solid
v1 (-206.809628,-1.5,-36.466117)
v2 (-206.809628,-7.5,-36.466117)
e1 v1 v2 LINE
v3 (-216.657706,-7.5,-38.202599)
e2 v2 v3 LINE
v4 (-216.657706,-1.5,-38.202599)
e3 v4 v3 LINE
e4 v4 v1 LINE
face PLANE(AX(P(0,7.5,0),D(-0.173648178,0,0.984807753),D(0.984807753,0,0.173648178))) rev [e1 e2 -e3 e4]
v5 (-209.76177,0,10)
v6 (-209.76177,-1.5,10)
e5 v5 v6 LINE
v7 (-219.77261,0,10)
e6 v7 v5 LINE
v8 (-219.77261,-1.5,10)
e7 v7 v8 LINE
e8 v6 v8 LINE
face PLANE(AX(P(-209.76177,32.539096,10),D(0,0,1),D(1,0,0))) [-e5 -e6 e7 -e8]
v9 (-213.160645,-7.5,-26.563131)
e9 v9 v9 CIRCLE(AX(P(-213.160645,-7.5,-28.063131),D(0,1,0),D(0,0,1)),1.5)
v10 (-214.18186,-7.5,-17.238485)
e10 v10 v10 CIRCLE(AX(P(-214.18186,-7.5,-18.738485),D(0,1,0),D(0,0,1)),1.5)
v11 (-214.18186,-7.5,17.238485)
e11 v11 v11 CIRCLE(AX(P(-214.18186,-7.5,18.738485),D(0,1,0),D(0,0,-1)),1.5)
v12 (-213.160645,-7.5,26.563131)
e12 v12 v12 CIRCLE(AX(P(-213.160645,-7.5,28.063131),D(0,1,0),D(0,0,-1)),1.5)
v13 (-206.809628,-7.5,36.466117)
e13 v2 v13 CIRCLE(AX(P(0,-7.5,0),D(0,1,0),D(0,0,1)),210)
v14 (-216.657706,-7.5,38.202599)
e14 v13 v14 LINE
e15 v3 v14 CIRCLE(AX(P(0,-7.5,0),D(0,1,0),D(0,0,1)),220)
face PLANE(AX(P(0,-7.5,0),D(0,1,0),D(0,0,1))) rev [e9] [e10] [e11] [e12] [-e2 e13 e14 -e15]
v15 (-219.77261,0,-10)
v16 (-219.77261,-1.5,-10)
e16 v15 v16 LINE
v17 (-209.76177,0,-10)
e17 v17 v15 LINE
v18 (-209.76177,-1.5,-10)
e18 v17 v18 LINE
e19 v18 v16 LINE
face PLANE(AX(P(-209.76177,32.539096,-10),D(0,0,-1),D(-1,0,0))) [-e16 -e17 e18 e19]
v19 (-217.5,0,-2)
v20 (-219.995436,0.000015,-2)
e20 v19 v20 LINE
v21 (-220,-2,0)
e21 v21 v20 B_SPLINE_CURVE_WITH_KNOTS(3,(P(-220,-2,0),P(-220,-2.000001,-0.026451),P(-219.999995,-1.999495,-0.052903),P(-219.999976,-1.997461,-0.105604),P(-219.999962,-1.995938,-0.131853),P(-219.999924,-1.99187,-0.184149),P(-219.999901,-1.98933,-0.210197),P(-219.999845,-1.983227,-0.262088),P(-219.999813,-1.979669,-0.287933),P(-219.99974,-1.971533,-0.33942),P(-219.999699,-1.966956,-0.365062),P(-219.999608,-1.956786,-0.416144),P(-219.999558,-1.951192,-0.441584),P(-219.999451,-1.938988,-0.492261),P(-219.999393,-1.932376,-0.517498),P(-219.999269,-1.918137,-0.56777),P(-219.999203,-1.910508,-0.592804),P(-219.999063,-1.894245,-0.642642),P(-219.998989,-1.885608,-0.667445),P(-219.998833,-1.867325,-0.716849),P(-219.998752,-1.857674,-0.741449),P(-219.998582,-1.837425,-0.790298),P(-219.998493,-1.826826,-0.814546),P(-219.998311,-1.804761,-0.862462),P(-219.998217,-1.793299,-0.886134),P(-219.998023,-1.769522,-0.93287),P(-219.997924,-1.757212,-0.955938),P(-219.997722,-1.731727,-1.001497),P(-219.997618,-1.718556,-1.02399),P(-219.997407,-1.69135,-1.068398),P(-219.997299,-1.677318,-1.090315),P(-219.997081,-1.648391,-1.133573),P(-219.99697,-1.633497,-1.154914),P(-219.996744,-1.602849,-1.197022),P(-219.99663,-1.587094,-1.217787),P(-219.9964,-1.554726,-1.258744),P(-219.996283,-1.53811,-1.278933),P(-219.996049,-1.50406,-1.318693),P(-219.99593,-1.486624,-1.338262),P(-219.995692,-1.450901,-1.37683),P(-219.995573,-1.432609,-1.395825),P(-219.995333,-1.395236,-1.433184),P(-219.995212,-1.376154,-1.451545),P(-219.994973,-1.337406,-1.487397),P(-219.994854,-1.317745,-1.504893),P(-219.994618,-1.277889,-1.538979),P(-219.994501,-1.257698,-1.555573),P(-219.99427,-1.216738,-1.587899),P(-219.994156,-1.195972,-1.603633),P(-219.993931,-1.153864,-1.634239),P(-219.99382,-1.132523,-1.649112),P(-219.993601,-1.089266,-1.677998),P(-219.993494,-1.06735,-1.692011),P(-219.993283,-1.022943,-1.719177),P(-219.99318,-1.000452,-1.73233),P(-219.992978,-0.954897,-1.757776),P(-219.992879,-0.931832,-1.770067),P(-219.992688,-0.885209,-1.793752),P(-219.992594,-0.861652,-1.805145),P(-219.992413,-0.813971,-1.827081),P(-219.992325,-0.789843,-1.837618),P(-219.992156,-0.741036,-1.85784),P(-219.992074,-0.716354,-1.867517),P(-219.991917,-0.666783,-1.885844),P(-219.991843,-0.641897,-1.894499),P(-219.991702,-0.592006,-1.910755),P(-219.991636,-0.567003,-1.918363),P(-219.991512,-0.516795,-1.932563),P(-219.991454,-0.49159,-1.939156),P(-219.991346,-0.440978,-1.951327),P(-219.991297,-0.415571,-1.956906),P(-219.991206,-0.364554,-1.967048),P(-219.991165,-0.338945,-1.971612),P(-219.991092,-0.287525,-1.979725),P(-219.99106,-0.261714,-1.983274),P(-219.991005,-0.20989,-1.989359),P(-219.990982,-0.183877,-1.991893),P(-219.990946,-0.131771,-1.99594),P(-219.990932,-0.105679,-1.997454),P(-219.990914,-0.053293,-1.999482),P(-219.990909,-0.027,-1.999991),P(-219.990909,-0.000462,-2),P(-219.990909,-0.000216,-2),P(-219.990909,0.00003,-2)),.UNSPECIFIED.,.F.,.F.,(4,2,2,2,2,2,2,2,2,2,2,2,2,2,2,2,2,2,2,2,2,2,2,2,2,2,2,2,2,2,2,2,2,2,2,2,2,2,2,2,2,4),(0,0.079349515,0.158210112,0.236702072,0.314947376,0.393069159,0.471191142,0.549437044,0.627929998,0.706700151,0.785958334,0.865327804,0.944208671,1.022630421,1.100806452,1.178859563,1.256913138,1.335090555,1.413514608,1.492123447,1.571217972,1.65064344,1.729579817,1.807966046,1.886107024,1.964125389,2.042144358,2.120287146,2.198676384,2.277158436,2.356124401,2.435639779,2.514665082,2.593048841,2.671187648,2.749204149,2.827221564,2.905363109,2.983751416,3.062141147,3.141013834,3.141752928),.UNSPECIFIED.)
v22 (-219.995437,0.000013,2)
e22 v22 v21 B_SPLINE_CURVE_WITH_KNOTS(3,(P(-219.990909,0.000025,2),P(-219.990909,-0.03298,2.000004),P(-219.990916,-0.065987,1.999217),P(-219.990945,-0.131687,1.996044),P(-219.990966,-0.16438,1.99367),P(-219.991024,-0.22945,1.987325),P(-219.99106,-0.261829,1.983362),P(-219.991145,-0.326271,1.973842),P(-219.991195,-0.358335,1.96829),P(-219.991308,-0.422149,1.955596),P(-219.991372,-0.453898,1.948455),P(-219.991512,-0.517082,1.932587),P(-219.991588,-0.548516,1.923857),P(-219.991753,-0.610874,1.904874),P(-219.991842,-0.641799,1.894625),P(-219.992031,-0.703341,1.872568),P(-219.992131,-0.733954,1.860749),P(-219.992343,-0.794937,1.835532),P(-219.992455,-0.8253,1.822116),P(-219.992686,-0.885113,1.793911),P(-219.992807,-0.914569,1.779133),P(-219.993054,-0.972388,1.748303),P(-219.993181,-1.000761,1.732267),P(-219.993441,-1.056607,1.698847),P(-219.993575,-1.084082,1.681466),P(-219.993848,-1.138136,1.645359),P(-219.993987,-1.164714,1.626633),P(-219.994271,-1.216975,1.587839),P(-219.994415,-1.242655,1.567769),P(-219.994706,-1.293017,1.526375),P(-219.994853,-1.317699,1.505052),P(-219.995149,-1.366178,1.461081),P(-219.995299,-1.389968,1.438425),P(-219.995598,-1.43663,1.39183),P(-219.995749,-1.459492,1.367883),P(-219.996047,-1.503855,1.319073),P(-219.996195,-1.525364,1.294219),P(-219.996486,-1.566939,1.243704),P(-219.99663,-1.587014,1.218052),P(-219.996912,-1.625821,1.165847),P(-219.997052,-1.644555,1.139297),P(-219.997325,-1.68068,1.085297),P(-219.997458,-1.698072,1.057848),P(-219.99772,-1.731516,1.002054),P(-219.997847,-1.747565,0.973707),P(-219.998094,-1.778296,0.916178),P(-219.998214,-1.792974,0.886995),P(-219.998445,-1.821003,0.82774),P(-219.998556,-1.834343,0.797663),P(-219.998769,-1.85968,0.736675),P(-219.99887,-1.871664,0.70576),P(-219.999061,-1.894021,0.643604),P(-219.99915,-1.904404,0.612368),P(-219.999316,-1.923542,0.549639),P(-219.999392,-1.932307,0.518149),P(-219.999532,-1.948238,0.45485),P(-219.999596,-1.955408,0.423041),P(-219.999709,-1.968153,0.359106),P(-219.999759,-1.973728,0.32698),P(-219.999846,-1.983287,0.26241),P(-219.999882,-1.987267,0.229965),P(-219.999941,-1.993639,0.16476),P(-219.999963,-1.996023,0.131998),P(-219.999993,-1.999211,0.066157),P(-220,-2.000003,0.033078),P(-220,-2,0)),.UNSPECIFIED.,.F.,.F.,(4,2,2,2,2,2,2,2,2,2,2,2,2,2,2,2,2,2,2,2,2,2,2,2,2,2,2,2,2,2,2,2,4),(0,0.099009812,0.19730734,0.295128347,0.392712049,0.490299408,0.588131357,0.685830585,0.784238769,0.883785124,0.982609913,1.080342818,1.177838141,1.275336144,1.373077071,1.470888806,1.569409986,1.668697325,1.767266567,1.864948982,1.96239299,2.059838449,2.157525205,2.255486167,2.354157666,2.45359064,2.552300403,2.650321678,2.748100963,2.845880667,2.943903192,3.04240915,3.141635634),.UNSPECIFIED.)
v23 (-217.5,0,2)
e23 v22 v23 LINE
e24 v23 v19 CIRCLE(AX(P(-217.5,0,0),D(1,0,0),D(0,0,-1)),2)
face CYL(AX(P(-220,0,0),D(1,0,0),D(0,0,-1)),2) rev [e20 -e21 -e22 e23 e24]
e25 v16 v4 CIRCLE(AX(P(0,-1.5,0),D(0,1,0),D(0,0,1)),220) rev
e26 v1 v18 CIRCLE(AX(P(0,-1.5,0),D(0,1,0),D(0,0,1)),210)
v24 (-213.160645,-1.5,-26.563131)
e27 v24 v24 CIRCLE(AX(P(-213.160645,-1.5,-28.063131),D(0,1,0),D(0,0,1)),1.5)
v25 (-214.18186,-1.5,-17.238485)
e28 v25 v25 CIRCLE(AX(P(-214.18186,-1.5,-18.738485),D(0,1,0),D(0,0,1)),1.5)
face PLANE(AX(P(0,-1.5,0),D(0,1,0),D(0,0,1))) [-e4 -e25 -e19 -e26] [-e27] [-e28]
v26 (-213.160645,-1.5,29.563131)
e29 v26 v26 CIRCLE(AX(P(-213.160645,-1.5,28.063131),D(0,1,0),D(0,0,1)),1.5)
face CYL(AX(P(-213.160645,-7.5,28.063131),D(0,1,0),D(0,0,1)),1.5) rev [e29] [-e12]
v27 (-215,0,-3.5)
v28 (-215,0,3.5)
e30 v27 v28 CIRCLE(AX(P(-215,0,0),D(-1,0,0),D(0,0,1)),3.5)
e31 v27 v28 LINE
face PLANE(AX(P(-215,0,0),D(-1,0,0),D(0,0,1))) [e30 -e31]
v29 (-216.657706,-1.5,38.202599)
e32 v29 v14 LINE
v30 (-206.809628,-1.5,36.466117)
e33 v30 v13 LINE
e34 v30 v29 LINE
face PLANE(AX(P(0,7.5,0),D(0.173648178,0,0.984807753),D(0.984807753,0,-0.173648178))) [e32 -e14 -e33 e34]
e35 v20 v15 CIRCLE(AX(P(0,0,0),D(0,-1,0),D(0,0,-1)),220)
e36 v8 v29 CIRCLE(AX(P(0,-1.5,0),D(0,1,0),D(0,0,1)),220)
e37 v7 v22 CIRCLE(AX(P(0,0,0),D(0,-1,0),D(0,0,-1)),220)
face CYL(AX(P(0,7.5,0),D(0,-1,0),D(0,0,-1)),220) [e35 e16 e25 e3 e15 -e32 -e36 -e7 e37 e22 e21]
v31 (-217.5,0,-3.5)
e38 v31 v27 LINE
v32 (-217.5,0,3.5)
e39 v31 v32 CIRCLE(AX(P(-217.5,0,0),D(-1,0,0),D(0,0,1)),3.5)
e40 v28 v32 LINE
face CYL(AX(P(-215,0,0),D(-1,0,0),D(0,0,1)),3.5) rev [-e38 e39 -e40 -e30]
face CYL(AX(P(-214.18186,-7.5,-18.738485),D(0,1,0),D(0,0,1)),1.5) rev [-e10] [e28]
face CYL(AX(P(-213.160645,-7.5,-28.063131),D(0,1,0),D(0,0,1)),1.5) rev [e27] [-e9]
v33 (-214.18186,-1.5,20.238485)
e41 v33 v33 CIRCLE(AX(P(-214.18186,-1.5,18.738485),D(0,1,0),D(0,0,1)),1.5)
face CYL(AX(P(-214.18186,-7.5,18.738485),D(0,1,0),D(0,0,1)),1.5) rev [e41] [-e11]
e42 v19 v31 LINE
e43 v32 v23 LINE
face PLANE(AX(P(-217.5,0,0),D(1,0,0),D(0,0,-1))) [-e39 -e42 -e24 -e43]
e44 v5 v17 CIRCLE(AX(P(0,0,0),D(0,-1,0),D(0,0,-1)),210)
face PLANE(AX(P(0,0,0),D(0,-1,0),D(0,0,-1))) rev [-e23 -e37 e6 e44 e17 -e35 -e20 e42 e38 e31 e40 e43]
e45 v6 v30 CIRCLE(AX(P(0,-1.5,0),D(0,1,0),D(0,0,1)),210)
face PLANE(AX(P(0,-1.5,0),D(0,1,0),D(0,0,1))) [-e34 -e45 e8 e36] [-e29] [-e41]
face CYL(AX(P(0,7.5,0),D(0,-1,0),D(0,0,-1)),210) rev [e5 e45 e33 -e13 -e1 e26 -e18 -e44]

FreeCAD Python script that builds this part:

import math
import FreeCAD as App
import Part
import Sketcher
from FreeCAD import Vector
Q = App.Units.Quantity


def add_polygon(sketch, points):
    """Adds a closed chain of lines whose ends are joined by coincident constraints."""
    first, n = sketch.GeometryCount, len(points)
    for a, b in zip(points, points[1:] + points[:1]):
        sketch.addGeometry(Part.LineSegment(App.Vector(*a, 0), App.Vector(*b, 0)), False)
    for i in range(n):
        sketch.addConstraint(Sketcher.Constraint("Coincident", first + i, 2, first + (i + 1) % n, 1))

doc = App.newDocument("Part")
body = doc.addObject("PartDesign::Body", "Body")

# Sketch on XZ plane
sketch1 = body.newObject("Sketcher::SketchObject", "Sketch")
sketch1.AttachmentSupport = (doc.getObject("XZ_Plane"), [""])
sketch1.MapMode = "FlatFace"
sketch1.addGeometry([
    Part.ArcOfCircle(Part.Circle(Vector(0, 0, 0), Vector(0, 0, 1), 210), math.radians(-177.27), math.radians(-170)),  # 0
    Part.LineSegment(Vector(-207, -36, 0), Vector(-217, -38, 0)),  # 1
    Part.ArcOfCircle(Part.Circle(Vector(0, 0, 0), Vector(0, 0, 1), 220), math.radians(-177.39), math.radians(-170)),  # 2
    Part.ArcOfCircle(Part.Circle(Vector(0, 0, 0), Vector(0, 0, 1), 220), math.radians(177.39), math.radians(182.61)),  # 3
    Part.ArcOfCircle(Part.Circle(Vector(0, 0, 0), Vector(0, 0, 1), 220), math.radians(170), math.radians(177.39)),  # 4
    Part.LineSegment(Vector(-217, 38, 0), Vector(-207, 36, 0)),  # 5
    Part.ArcOfCircle(Part.Circle(Vector(0, 0, 0), Vector(0, 0, 1), 210), math.radians(170), math.radians(177.27)),  # 6
    Part.ArcOfCircle(Part.Circle(Vector(0, 0, 0), Vector(0, 0, 1), 210), math.radians(177.27), math.radians(182.73)),  # 7
], False)
sketch1.addConstraint([
    Sketcher.Constraint("Coincident", 0, 2, 1, 1),
    Sketcher.Constraint("Coincident", 1, 2, 2, 2),
    Sketcher.Constraint("Tangent", 2, 1, 3, 2),
    Sketcher.Constraint("Tangent", 3, 1, 4, 2),
    Sketcher.Constraint("Coincident", 4, 1, 5, 1),
    Sketcher.Constraint("Coincident", 5, 2, 6, 1),
    Sketcher.Constraint("Tangent", 6, 2, 7, 1),
    Sketcher.Constraint("Tangent", 7, 2, 0, 1),
    Sketcher.Constraint("Coincident", 0, 3, -1, 1),
    Sketcher.Constraint("Coincident", 2, 3, -1, 1),
    Sketcher.Constraint("Coincident", 4, 3, -1, 1),
    Sketcher.Constraint("Coincident", 6, 3, -1, 1),
    Sketcher.Constraint("Horizontal", 3, 1, 6, 2),
    Sketcher.Constraint("Horizontal", 2, 1, 7, 2),
    Sketcher.Constraint("Vertical", 2, 1, 3, 1),
    Sketcher.Constraint("Vertical", 1, 2, 4, 1),
    Sketcher.Constraint("Vertical", 0, 2, 5, 2),
    Sketcher.Constraint("Radius", 0, 210.0),
    Sketcher.Constraint("Radius", 2, 220.0),
    Sketcher.Constraint("Angle", 1, Q("-170 deg")),
    Sketcher.Constraint("DistanceY", 2, 1, -1, 1, 10.0),
    Sketcher.Constraint("DistanceY", 1, 2, -1, 1, 38.202599),
])
pad1 = body.newObject("PartDesign::Pad", "Pad")
pad1.Profile = sketch1
pad1.Length = 15
pad1.Midplane = True

# Sketch on XZ plane
sketch2 = body.newObject("Sketcher::SketchObject", "Sketch001")
sketch2.AttachmentSupport = (doc.getObject("XZ_Plane"), [""])
sketch2.MapMode = "FlatFace"
sketch2.AttachmentOffset = App.Placement(Vector(0, 0, 1.5), App.Rotation())
sketch2.addGeometry([
    Part.LineSegment(Vector(-210, 10, 0), Vector(-220, 10, 0)),  # 0
    Part.ArcOfCircle(Part.Circle(Vector(0, 0, 0), Vector(0, 0, 1), 220), math.radians(170), math.radians(177.39)),  # 1
    Part.LineSegment(Vector(-217, 38, 0), Vector(-207, 36, 0)),  # 2
    Part.ArcOfCircle(Part.Circle(Vector(0, 0, 0), Vector(0, 0, 1), 210), math.radians(170), math.radians(177.27)),  # 3
    Part.LineSegment(Vector(-220, -10, 0), Vector(-210, -10, 0)),  # 4
    Part.ArcOfCircle(Part.Circle(Vector(0, 0, 0), Vector(0, 0, 1), 210), math.radians(-177.27), math.radians(-170)),  # 5
    Part.LineSegment(Vector(-207, -36, 0), Vector(-217, -38, 0)),  # 6
    Part.ArcOfCircle(Part.Circle(Vector(0, 0, 0), Vector(0, 0, 1), 220), math.radians(-177.39), math.radians(-170)),  # 7
], False)
sketch2.addConstraint([
    Sketcher.Constraint("Coincident", 0, 2, 1, 2),
    Sketcher.Constraint("Coincident", 1, 1, 2, 1),
    Sketcher.Constraint("Coincident", 2, 2, 3, 1),
    Sketcher.Constraint("Coincident", 3, 2, 0, 1),
    Sketcher.Constraint("Coincident", 4, 2, 5, 1),
    Sketcher.Constraint("Coincident", 5, 2, 6, 1),
    Sketcher.Constraint("Coincident", 6, 2, 7, 2),
    Sketcher.Constraint("Coincident", 7, 1, 4, 1),
    Sketcher.Constraint("Horizontal", 0),
    Sketcher.Constraint("Horizontal", 4),
    Sketcher.Constraint("Coincident", 1, 3, -1, 1),
    Sketcher.Constraint("Coincident", 3, 3, -1, 1),
    Sketcher.Constraint("Coincident", 5, 3, -1, 1),
    Sketcher.Constraint("Coincident", 7, 3, -1, 1),
    Sketcher.Constraint("Equal", 3, 5),
    Sketcher.Constraint("Equal", 1, 7),
    Sketcher.Constraint("Vertical", 3, 2, 4, 2),
    Sketcher.Constraint("Vertical", 2, 2, 5, 2),
    Sketcher.Constraint("Vertical", 1, 1, 6, 2),
    Sketcher.Constraint("Radius", 1, 220.0),
    Sketcher.Constraint("Radius", 3, 210.0),
    Sketcher.Constraint("Angle", 2, Q("-10 deg")),
    Sketcher.Constraint("DistanceY", -1, 1, 0, 2, 10.0),
    Sketcher.Constraint("DistanceY", -1, 1, 1, 1, 38.202599),
])
pocket1 = body.newObject("PartDesign::Pocket", "Pocket")
pocket1.Profile = sketch2
pocket1.Length = 3

# Sketch on XZ plane
sketch3 = body.newObject("Sketcher::SketchObject", "Sketch002")
sketch3.AttachmentSupport = (doc.getObject("XZ_Plane"), [""])
sketch3.MapMode = "FlatFace"
sketch3.addGeometry([
    Part.Circle(Vector(-213.2, -28.1, 0), Vector(0, 0, 1), 1.5),
    Part.Circle(Vector(-214.2, -18.7, 0), Vector(0, 0, 1), 1.5),
    Part.Circle(Vector(-214.2, 18.7, 0), Vector(0, 0, 1), 1.5),
    Part.Circle(Vector(-213.2, 28.1, 0), Vector(0, 0, 1), 1.5),
], False)
sketch3.addConstraint([
    Sketcher.Constraint("Equal", 0, 1),
    Sketcher.Constraint("Equal", 1, 2),
    Sketcher.Constraint("Equal", 2, 3),
    Sketcher.Constraint("Symmetric", 1, 3, 2, 3, -1),
    Sketcher.Constraint("Symmetric", 0, 3, 3, 3, -1),
    Sketcher.Constraint("Diameter", 0, 3.0),
    Sketcher.Constraint("DistanceY", 0, 3, -1, 1, 28.063131),
    Sketcher.Constraint("DistanceX", 1, 3, -1, 1, 214.18186),
    Sketcher.Constraint("DistanceY", 1, 3, 2, 3, 37.476969),
    Sketcher.Constraint("DistanceX", 0, 3, -1, 1, 213.160645),
])
pocket2 = body.newObject("PartDesign::Pocket", "Pocket001")
pocket2.Profile = sketch3
pocket2.Type = "ThroughAll"
pocket2.Midplane = True

# Sketch on XZ plane
sketch4 = body.newObject("Sketcher::SketchObject", "Sketch003")
sketch4.AttachmentSupport = (doc.getObject("XZ_Plane"), [""])
sketch4.MapMode = "FlatFace"
add_polygon(sketch4, [(-217.5, -3.5), (-217.5, 0), (-215, 0), (-215, -3.5)])  # lines 0-3
sketch4.addConstraint([
    Sketcher.Constraint("Vertical", 0),
    Sketcher.Constraint("Horizontal", 1),
    Sketcher.Constraint("Vertical", 2),
    Sketcher.Constraint("Horizontal", 3),
    Sketcher.Constraint("PointOnObject", 0, 2, -1),
    Sketcher.Constraint("DistanceX", 1, 1, 1, 2, 2.5),
    Sketcher.Constraint("DistanceY", 0, 1, 0, 2, 3.5),
    Sketcher.Constraint("DistanceX", 1, 2, -1, 1, 215.0),
])
groove = body.newObject("PartDesign::Groove", "Groove")
groove.Profile = sketch4
groove.ReferenceAxis = (sketch4, ["H_Axis"])
groove.Angle = 360

# Sketch on YZ plane
sketch5 = body.newObject("Sketcher::SketchObject", "Sketch004")
sketch5.AttachmentSupport = (doc.getObject("YZ_Plane"), [""])
sketch5.MapMode = "FlatFace"
sketch5.AttachmentOffset = App.Placement(Vector(0, 0, -215), App.Rotation())
sketch5.addGeometry(Part.Circle(Vector(0, 0, 0), Vector(0, 0, 1), 2), False)
sketch5.addConstraint([
    Sketcher.Constraint("Coincident", 0, 3, -1, 1),
    Sketcher.Constraint("Diameter", 0, 4.0),
])
pocket3 = body.newObject("PartDesign::Pocket", "Pocket002")
pocket3.Profile = sketch5
pocket3.Type = "ThroughAll"

# Sketch on XZ plane
sketch6 = body.newObject("Sketcher::SketchObject", "Sketch005")
sketch6.AttachmentSupport = (doc.getObject("XZ_Plane"), [""])
sketch6.MapMode = "FlatFace"
add_polygon(sketch6, [(-220, -38), (-220, 38), (-200, 38), (-200, -38)])  # lines 0-3
sketch6.addConstraint([
    Sketcher.Constraint("Vertical", 0),
    Sketcher.Constraint("Horizontal", 1),
    Sketcher.Constraint("Vertical", 2),
    Sketcher.Constraint("Horizontal", 3),
    Sketcher.Constraint("DistanceX", 1, 1, 1, 2, 20.0),
    Sketcher.Constraint("DistanceX", 0, 2, -1, 1, 220.0),
    Sketcher.Constraint("DistanceY", 0, 1, 0, 2, 76.405198),
    Sketcher.Constraint("DistanceY", -1, 1, 0, 2, 38.202599),
])
pocket4 = body.newObject("PartDesign::Pocket", "Pocket003")
pocket4.Profile = sketch6
pocket4.Length = 10

doc.recompute()
